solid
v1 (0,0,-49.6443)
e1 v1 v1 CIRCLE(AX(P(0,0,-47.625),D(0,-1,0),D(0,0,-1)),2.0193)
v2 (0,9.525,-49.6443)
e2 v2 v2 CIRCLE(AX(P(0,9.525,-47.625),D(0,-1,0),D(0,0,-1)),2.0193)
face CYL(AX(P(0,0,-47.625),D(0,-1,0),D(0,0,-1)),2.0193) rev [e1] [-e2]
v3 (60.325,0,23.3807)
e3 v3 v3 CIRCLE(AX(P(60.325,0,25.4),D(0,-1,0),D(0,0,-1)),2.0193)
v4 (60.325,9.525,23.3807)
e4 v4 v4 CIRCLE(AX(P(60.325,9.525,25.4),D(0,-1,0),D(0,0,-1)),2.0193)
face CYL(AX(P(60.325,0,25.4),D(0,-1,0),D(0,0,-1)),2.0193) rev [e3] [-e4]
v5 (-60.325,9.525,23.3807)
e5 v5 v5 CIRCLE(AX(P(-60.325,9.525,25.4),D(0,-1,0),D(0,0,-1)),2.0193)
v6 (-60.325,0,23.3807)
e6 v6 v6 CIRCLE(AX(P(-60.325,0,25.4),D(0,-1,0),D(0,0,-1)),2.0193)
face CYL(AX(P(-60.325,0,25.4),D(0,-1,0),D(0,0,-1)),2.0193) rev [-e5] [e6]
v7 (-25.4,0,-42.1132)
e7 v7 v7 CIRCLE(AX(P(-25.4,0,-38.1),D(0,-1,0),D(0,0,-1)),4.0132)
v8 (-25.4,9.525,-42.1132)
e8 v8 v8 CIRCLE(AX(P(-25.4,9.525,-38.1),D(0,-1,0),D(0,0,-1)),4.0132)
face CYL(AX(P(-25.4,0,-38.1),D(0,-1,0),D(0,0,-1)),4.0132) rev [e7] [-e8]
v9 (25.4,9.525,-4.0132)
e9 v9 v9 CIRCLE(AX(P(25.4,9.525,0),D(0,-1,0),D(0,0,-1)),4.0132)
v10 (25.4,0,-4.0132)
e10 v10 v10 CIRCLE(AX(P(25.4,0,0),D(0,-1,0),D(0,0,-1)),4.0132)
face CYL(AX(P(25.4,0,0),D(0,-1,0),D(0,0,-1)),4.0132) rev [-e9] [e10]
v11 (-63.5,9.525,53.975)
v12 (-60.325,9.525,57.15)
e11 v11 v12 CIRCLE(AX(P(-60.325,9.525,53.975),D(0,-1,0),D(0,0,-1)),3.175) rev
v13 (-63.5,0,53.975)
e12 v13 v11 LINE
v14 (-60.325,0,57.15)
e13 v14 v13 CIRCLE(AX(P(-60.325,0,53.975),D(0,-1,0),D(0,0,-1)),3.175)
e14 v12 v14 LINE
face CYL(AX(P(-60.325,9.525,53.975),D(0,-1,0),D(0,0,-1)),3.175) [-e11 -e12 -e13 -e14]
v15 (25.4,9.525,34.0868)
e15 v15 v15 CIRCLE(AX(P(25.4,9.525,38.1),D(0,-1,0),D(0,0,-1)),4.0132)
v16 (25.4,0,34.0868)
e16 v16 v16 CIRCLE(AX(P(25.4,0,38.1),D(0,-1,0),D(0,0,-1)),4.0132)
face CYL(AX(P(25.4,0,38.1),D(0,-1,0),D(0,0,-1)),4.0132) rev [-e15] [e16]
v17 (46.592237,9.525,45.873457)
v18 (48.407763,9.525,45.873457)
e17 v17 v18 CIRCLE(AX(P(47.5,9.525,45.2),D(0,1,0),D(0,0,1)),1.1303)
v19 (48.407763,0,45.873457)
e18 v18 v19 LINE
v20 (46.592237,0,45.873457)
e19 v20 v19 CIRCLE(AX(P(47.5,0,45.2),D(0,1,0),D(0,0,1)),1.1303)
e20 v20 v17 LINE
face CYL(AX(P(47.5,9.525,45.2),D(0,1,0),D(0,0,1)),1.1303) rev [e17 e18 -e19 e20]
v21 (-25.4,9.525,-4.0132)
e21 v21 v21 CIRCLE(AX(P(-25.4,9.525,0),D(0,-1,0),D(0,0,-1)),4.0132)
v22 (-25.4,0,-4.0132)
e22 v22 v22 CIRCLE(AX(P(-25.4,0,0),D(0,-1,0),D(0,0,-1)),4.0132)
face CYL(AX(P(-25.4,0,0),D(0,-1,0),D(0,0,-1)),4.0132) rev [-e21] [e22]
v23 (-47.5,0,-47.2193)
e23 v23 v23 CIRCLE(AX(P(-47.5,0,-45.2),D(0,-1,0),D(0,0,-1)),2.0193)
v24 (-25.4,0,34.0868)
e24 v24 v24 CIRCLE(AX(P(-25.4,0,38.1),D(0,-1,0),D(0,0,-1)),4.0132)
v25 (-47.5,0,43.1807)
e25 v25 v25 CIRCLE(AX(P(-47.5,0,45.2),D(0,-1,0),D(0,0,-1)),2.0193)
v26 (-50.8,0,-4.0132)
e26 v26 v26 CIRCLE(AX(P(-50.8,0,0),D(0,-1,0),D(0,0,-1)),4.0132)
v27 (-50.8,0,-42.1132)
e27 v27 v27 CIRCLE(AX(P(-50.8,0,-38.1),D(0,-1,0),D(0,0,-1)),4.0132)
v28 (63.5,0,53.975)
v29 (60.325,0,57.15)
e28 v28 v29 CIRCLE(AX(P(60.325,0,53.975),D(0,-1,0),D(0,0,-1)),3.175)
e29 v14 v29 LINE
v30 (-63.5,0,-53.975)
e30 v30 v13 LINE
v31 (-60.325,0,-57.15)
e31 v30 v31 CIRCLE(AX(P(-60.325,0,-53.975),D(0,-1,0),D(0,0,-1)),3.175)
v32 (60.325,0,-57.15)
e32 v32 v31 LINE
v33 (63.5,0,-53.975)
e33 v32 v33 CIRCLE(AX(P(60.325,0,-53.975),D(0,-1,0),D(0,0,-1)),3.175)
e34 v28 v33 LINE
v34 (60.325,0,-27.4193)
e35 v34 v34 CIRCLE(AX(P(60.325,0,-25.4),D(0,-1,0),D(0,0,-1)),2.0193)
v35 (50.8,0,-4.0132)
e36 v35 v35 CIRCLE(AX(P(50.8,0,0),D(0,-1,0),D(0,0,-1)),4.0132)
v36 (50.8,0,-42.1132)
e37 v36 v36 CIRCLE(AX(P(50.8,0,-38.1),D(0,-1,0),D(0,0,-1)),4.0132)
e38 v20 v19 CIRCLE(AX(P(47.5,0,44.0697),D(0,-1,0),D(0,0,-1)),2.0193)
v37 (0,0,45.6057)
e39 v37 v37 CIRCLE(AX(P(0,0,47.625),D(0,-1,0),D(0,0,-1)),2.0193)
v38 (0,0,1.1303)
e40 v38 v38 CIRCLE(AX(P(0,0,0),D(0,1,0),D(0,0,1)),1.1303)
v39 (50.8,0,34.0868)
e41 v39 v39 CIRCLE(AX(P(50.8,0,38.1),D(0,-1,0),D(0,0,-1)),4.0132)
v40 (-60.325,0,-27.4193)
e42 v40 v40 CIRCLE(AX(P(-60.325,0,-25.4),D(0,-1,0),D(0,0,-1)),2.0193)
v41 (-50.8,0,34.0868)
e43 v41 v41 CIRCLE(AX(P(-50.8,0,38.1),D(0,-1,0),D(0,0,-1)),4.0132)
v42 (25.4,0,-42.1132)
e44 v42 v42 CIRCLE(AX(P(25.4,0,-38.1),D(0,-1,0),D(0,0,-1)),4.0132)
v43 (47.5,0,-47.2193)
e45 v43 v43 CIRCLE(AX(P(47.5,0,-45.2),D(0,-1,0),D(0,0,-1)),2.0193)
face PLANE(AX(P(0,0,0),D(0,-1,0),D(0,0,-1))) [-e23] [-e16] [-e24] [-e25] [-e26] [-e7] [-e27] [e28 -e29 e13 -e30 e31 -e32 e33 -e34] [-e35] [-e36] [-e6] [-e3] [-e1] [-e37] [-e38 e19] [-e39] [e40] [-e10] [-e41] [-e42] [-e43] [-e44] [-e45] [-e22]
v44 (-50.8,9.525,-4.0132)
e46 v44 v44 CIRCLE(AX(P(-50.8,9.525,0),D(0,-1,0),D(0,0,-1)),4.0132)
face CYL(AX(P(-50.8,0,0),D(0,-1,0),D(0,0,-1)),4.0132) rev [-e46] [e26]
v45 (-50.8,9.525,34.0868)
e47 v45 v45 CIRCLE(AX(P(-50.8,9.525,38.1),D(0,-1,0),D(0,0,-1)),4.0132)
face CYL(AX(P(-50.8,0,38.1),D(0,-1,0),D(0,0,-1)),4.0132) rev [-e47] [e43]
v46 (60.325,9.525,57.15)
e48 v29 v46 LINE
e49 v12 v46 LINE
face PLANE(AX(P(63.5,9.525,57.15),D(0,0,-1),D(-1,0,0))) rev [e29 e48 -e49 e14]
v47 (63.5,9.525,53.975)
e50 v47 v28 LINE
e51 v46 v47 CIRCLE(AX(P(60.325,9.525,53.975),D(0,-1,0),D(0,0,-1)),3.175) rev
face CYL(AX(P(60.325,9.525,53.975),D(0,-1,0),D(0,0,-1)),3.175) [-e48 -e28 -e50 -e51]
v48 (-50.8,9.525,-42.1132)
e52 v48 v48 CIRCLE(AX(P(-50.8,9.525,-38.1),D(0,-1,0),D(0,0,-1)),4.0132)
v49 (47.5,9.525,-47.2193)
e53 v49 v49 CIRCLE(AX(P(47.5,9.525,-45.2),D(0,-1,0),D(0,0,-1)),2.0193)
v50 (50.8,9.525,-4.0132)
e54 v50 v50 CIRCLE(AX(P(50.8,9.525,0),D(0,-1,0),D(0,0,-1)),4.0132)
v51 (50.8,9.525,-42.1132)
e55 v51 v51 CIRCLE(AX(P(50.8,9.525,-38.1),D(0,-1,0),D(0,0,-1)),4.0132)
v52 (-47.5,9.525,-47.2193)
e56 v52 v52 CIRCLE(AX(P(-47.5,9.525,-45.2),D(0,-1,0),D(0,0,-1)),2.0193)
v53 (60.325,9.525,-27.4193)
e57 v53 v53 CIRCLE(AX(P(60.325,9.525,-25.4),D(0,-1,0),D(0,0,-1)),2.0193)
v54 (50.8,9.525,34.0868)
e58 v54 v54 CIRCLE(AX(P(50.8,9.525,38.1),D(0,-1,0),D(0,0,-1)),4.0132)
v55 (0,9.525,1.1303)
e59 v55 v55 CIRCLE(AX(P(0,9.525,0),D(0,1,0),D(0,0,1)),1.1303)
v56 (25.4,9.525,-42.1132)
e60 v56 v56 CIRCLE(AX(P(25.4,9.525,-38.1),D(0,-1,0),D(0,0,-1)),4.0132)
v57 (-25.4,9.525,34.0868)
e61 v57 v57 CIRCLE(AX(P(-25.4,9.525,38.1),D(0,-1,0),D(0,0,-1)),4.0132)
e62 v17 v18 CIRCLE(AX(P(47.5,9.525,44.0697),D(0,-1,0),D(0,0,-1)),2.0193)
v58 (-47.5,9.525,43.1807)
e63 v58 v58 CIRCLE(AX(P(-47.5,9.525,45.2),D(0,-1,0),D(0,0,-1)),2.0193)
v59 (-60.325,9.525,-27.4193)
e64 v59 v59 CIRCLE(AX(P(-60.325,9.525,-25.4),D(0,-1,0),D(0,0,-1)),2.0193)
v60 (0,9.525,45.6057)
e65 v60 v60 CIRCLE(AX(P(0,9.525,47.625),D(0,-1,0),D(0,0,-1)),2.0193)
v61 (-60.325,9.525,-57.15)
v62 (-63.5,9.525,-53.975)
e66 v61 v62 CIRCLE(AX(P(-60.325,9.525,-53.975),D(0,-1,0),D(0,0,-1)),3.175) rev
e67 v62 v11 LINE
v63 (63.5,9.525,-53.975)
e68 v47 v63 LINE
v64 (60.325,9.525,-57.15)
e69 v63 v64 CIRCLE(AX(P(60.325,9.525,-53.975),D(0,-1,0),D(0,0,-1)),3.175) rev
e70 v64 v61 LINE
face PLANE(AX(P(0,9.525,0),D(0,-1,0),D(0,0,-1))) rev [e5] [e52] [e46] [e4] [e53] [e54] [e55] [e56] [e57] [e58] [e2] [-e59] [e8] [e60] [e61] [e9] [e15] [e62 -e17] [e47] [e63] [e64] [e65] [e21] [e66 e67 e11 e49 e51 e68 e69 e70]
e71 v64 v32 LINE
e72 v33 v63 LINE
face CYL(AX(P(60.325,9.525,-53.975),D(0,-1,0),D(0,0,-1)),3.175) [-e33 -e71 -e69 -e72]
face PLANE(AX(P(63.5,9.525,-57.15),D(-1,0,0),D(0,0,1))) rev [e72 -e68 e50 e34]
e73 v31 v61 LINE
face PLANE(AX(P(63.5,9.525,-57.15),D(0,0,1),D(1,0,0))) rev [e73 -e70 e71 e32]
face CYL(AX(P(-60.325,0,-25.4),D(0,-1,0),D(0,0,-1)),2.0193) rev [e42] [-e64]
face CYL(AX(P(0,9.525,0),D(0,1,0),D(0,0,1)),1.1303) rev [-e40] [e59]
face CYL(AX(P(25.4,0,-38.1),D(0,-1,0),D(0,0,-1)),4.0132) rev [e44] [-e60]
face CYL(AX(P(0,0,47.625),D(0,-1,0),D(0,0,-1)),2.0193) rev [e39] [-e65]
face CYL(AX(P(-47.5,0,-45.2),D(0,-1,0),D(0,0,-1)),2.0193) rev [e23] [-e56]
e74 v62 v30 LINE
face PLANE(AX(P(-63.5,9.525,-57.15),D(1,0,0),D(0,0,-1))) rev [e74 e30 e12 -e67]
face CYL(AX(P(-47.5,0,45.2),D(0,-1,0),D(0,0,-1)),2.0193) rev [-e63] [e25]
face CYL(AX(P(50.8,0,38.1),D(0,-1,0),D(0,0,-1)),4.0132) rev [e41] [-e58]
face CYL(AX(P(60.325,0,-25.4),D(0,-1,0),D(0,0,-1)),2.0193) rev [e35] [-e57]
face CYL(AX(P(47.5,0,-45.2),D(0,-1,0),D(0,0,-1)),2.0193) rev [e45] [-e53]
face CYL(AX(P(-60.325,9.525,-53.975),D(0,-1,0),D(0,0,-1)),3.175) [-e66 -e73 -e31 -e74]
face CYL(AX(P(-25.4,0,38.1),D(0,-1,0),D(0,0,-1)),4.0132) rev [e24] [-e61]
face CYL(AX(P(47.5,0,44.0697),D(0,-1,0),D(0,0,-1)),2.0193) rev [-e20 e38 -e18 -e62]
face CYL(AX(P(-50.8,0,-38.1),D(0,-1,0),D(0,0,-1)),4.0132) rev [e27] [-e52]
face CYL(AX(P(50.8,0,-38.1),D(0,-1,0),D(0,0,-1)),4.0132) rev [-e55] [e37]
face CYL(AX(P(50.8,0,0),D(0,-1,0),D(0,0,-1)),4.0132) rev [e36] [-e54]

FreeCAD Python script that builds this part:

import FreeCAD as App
import Part
import Sketcher
from FreeCAD import Vector
Q = App.Units.Quantity


def edges_at(feature, points):
    """Names of the edges that pass closest to the given points."""
    edges = feature.Shape.Edges
    near = lambda p: min(range(len(edges)), key=lambda i: edges[i].distToShape(Part.Vertex(*p))[0])
    return sorted({f"Edge{near(p) + 1}" for p in points})


def add_polygon(sketch, points):
    """Adds a closed chain of lines whose ends are joined by coincident constraints."""
    first, n = sketch.GeometryCount, len(points)
    for a, b in zip(points, points[1:] + points[:1]):
        sketch.addGeometry(Part.LineSegment(App.Vector(*a, 0), App.Vector(*b, 0)), False)
    for i in range(n):
        sketch.addConstraint(Sketcher.Constraint("Coincident", first + i, 2, first + (i + 1) % n, 1))

doc = App.newDocument("Part")
body = doc.addObject("PartDesign::Body", "Body")

# Sketch on XZ plane
sketch1 = body.newObject("Sketcher::SketchObject", "Sketch")
sketch1.AttachmentSupport = (doc.getObject("XZ_Plane"), [""])
sketch1.MapMode = "FlatFace"
add_polygon(sketch1, [(-64, -57), (-64, 57), (64, 57), (64, -57)])  # lines 0-3
sketch1.addConstraint([
    Sketcher.Constraint("Vertical", 0),
    Sketcher.Constraint("Horizontal", 1),
    Sketcher.Constraint("Vertical", 2),
    Sketcher.Constraint("Horizontal", 3),
    Sketcher.Constraint("Symmetric", 0, 2, 2, 2, -1, 1),
    Sketcher.Constraint("DistanceX", 1, 1, 1, 2, Q("5 in")),
    Sketcher.Constraint("DistanceY", 0, 1, 0, 2, Q("4.5 in")),
])
pad1 = body.newObject("PartDesign::Pad", "Pad")
pad1.Profile = sketch1
pad1.Length = Q("0.375 in")
pad1.Reversed = True

# Sketch on XZ plane
sketch2 = body.newObject("Sketcher::SketchObject", "Sketch001")
sketch2.AttachmentSupport = (doc.getObject("XZ_Plane"), [""])
sketch2.MapMode = "FlatFace"
sketch2.AttachmentOffset = App.Placement(Vector(0, 0, -0.375 * 25.4), App.Rotation())
sketch2.addGeometry([
    Part.Circle(Vector(-47.5, -45.2, 0), Vector(0, 0, 1), 1.1),  # 0
    Part.Circle(Vector(-47.5, 45.2, 0), Vector(0, 0, 1), 1.1),  # 1
    Part.Circle(Vector(47.5, 45.2, 0), Vector(0, 0, 1), 1.1),  # 2
    Part.Circle(Vector(47.5, -45.2, 0), Vector(0, 0, 1), 1.1),  # 3
    Part.Circle(Vector(0, 0, 0), Vector(0, 0, 1), 1.1),  # 4
], False)
sketch2.addConstraint([
    Sketcher.Constraint("Coincident", 4, 3, -1, 1),
    Sketcher.Constraint("Equal", 0, 1),
    Sketcher.Constraint("Equal", 1, 2),
    Sketcher.Constraint("Equal", 2, 3),
    Sketcher.Constraint("Equal", 3, 4),
    Sketcher.Constraint("Symmetric", 0, 3, 2, 3, -1, 1),
    Sketcher.Constraint("Symmetric", 1, 3, 3, 3, -1, 1),
    Sketcher.Constraint("Symmetric", 1, 3, 2, 3, -2),
    Sketcher.Constraint("Diameter", 0, Q("0.089 in")),
    Sketcher.Constraint("DistanceX", 0, 3, -1, 1, Q("47.5 mm")),
    Sketcher.Constraint("DistanceY", 0, 3, -1, 1, Q("45.2 mm")),
])
doc.recompute()
hole = body.newObject("PartDesign::Hole", "Hole")
hole.Profile = sketch2
hole.ThreadType = "None"
hole.Diameter = Q("0.089 in")
hole.DepthType = "ThroughAll"
hole.Reversed = True

# Sketch on XZ plane
sketch3 = body.newObject("Sketcher::SketchObject", "Sketch002")
sketch3.AttachmentSupport = (doc.getObject("XZ_Plane"), [""])
sketch3.MapMode = "FlatFace"
sketch3.AttachmentOffset = App.Placement(Vector(0, 0, -0.375 * 25.4), App.Rotation())
sketch3.addGeometry([
    Part.Circle(Vector(60.3, -25.4, 0), Vector(0, 0, 1), 1.1),  # 0
    Part.Circle(Vector(60.3, 25.4, 0), Vector(0, 0, 1), 1.1),  # 1
    Part.Circle(Vector(-60.3, 25.4, 0), Vector(0, 0, 1), 1.1),  # 2
    Part.Circle(Vector(-60.3, -25.4, 0), Vector(0, 0, 1), 1.1),  # 3
    Part.Circle(Vector(0, 0, 0), Vector(0, 0, 1), 1.1),  # 4
], False)
sketch3.addConstraint([
    Sketcher.Constraint("Coincident", 4, 3, -1, 1),
    Sketcher.Constraint("Equal", 0, 1),
    Sketcher.Constraint("Equal", 1, 2),
    Sketcher.Constraint("Equal", 2, 3),
    Sketcher.Constraint("Equal", 3, 4),
    Sketcher.Constraint("Symmetric", 0, 3, 2, 3, -1, 1),
    Sketcher.Constraint("Symmetric", 1, 3, 3, 3, -1, 1),
    Sketcher.Constraint("Symmetric", 1, 3, 2, 3, -2),
    Sketcher.Constraint("Diameter", 0, Q("0.089 in")),
    Sketcher.Constraint("DistanceY", 0, 3, -1, 1, Q("1 in")),
    Sketcher.Constraint("DistanceX", 2, 3, 1, 3, Q("4.75 in")),
])
doc.recompute()
hole2 = body.newObject("PartDesign::Hole", "Hole001")
hole2.Profile = sketch3
hole2.ThreadType = "None"
hole2.Diameter = Q("0.089 in")
hole2.DepthType = "ThroughAll"
hole2.Reversed = True
doc.recompute()

fillet = body.newObject("PartDesign::Fillet", "Fillet")
fillet.Base = (hole2, edges_at(hole2, [
    (-63.5, 4.763, -57.15),
    (63.5, 4.763, -57.15),
    (63.5, 4.763, 57.15),
    (-63.5, 4.763, 57.15),
]))
fillet.Radius = Q("0.125 in")

# Sketch on XZ plane
sketch4 = body.newObject("Sketcher::SketchObject", "Sketch003")
sketch4.AttachmentSupport = (doc.getObject("XZ_Plane"), [""])
sketch4.MapMode = "FlatFace"
sketch4.AttachmentOffset = App.Placement(Vector(0, 0, -0.375 * 25.4), App.Rotation())
sketch4.addGeometry([
    Part.Circle(Vector(0, 47.6, 0), Vector(0, 0, 1), 1.1),
    Part.Circle(Vector(0, -47.6, 0), Vector(0, 0, 1), 1.1),
], False)
sketch4.addConstraint([
    Sketcher.Constraint("Equal", 0, 1),
    Sketcher.Constraint("Symmetric", 0, 3, 1, 3, -1, 1),
    Sketcher.Constraint("PointOnObject", 0, 3, -2),
    Sketcher.Constraint("Diameter", 0, Q("0.089 in")),
    Sketcher.Constraint("DistanceY", 1, 3, 0, 3, Q("3.75 in")),
])
doc.recompute()
hole3 = body.newObject("PartDesign::Hole", "Hole002")
hole3.Profile = sketch4
hole3.ThreadType = "None"
hole3.Diameter = Q("0.089 in")
hole3.DepthType = "ThroughAll"
hole3.Reversed = True

# Sketch on XZ plane
sketch5 = body.newObject("Sketcher::SketchObject", "Sketch004")
sketch5.AttachmentSupport = (doc.getObject("XZ_Plane"), [""])
sketch5.MapMode = "FlatFace"
sketch5.addGeometry([
    Part.Circle(Vector(50.8, -38.1, 0), Vector(0, 0, 1), 2.6),  # 0
    Part.Circle(Vector(25.4, -38.1, 0), Vector(0, 0, 1), 2.6),  # 1
    Part.Circle(Vector(25.4, 0, 0), Vector(0, 0, 1), 2.6),  # 2
    Part.Circle(Vector(50.8, 0, 0), Vector(0, 0, 1), 2.6),  # 3
    Part.Circle(Vector(50.8, 38.1, 0), Vector(0, 0, 1), 2.6),  # 4
    Part.Circle(Vector(25.4, 38.1, 0), Vector(0, 0, 1), 2.6),  # 5
    Part.Circle(Vector(-25.4, 38.1, 0), Vector(0, 0, 1), 2.6),  # 6
    Part.Circle(Vector(-50.8, 38.1, 0), Vector(0, 0, 1), 2.6),  # 7
    Part.Circle(Vector(-50.8, 0, 0), Vector(0, 0, 1), 2.6),  # 8
    Part.Circle(Vector(-25.4, 0, 0), Vector(0, 0, 1), 2.6),  # 9
    Part.Circle(Vector(-25.4, -38.1, 0), Vector(0, 0, 1), 2.6),  # 10
    Part.Circle(Vector(-50.8, -38.1, 0), Vector(0, 0, 1), 2.6),  # 11
], False)
sketch5.addConstraint([
    Sketcher.Constraint("Equal", 0, 1),
    Sketcher.Constraint("Equal", 1, 2),
    Sketcher.Constraint("Equal", 2, 3),
    Sketcher.Constraint("Equal", 3, 4),
    Sketcher.Constraint("Equal", 4, 5),
    Sketcher.Constraint("Equal", 5, 6),
    Sketcher.Constraint("Equal", 6, 7),
    Sketcher.Constraint("Equal", 7, 8),
    Sketcher.Constraint("Equal", 8, 9),
    Sketcher.Constraint("Equal", 9, 10),
    Sketcher.Constraint("Equal", 10, 11),
    Sketcher.Constraint("Symmetric", 1, 3, 6, 3, -1, 1),
    Sketcher.Constraint("Symmetric", 0, 3, 7, 3, -1, 1),
    Sketcher.Constraint("Symmetric", 3, 3, 8, 3, -1, 1),
    Sketcher.Constraint("Symmetric", 2, 3, 9, 3, -1, 1),
    Sketcher.Constraint("Symmetric", 5, 3, 10, 3, -1, 1),
    Sketcher.Constraint("Symmetric", 4, 3, 11, 3, -1, 1),
    Sketcher.Constraint("Symmetric", 5, 3, 6, 3, -2),
    Sketcher.Constraint("Symmetric", 4, 3, 7, 3, -2),
    Sketcher.Constraint("PointOnObject", 2, 3, -1),
    Sketcher.Constraint("PointOnObject", 3, 3, -1),
    Sketcher.Constraint("Horizontal", 0, 3, 1, 3),
    Sketcher.Constraint("Vertical", 1, 3, 2, 3),
    Sketcher.Constraint("Vertical", 0, 3, 3, 3),
    Sketcher.Constraint("Diameter", 0, Q("0.201 in")),
    Sketcher.Constraint("DistanceX", -1, 1, 0, 3, Q("2 in")),
    Sketcher.Constraint("DistanceX", -1, 1, 1, 3, Q("1 in")),
    Sketcher.Constraint("DistanceY", 0, 3, 4, 3, Q("3 in")),
])
doc.recompute()
hole4 = body.newObject("PartDesign::Hole", "Hole003")
hole4.Profile = sketch5
hole4.ThreadType = "None"
hole4.Diameter = Q("0.201 in")
hole4.DepthType = "ThroughAll"

# Sketch on XZ plane
sketch6 = body.newObject("Sketcher::SketchObject", "Sketch005")
sketch6.AttachmentSupport = (doc.getObject("XZ_Plane"), [""])
sketch6.MapMode = "FlatFace"
sketch6.addGeometry([
    Part.Circle(Vector(47.5, -45.2, 0), Vector(0, 0, 1), 2),  # 0
    Part.Circle(Vector(60.3, -25.4, 0), Vector(0, 0, 1), 2),  # 1
    Part.Circle(Vector(60.3, 25.4, 0), Vector(0, 0, 1), 2),  # 2
    Part.Circle(Vector(47.5, 44.1, 0), Vector(0, 0, 1), 2),  # 3
    Part.Circle(Vector(0, 47.6, 0), Vector(0, 0, 1), 2),  # 4
    Part.Circle(Vector(-47.5, 45.2, 0), Vector(0, 0, 1), 2),  # 5
    Part.Circle(Vector(-60.3, 25.4, 0), Vector(0, 0, 1), 2),  # 6
    Part.Circle(Vector(-60.3, -25.4, 0), Vector(0, 0, 1), 2),  # 7
    Part.Circle(Vector(-47.5, -45.2, 0), Vector(0, 0, 1), 2),  # 8
    Part.Circle(Vector(0, -47.6, 0), Vector(0, 0, 1), 2),  # 9
], False)
sketch6.addConstraint([
    Sketcher.Constraint("Equal", 0, 1),
    Sketcher.Constraint("Equal", 1, 2),
    Sketcher.Constraint("Equal", 2, 3),
    Sketcher.Constraint("Equal", 3, 4),
    Sketcher.Constraint("Equal", 4, 5),
    Sketcher.Constraint("Equal", 5, 6),
    Sketcher.Constraint("Equal", 6, 7),
    Sketcher.Constraint("Equal", 7, 8),
    Sketcher.Constraint("Equal", 8, 9),
    Sketcher.Constraint("Symmetric", 0, 3, 5, 3, -1, 1),
    Sketcher.Constraint("Symmetric", 1, 3, 6, 3, -1, 1),
    Sketcher.Constraint("Symmetric", 2, 3, 7, 3, -1, 1),
    Sketcher.Constraint("Symmetric", 4, 3, 9, 3, -1, 1),
    Sketcher.Constraint("Symmetric", 2, 3, 6, 3, -2),
    Sketcher.Constraint("Symmetric", 0, 3, 8, 3, -2),
    Sketcher.Constraint("PointOnObject", 4, 3, -2),
    Sketcher.Constraint("Vertical", 0, 3, 3, 3),
    Sketcher.Constraint("Diameter", 0, Q("0.159 in")),
    Sketcher.Constraint("DistanceY", 1, 3, -1, 1, Q("1 in")),
    Sketcher.Constraint("DistanceX", 6, 3, 2, 3, Q("4.75 in")),
    Sketcher.Constraint("DistanceY", -1, 1, 4, 3, Q("1.875 in")),
    Sketcher.Constraint("DistanceY", 3, 3, 5, 3, Q("0.0445 in")),
    Sketcher.Constraint("DistanceX", -1, 1, 0, 3, Q("47.5 mm")),
    Sketcher.Constraint("DistanceY", 0, 3, -1, 1, Q("45.2 mm")),
])
doc.recompute()
hole5 = body.newObject("PartDesign::Hole", "Hole004")
hole5.Profile = sketch6
hole5.ThreadType = "None"
hole5.Diameter = Q("0.159 in")
hole5.DepthType = "Dimension"
hole5.Depth = Q("0.375 in")
hole5.DrillPoint = "Flat"

# Sketch on XZ plane
sketch7 = body.newObject("Sketcher::SketchObject", "Sketch006")
sketch7.AttachmentSupport = (doc.getObject("XZ_Plane"), [""])
sketch7.MapMode = "FlatFace"
sketch7.addGeometry([
    Part.Circle(Vector(50.8, -38.1, 0), Vector(0, 0, 1), 4),  # 0
    Part.Circle(Vector(25.4, -38.1, 0), Vector(0, 0, 1), 4),  # 1
    Part.Circle(Vector(25.4, 0, 0), Vector(0, 0, 1), 4),  # 2
    Part.Circle(Vector(50.8, 0, 0), Vector(0, 0, 1), 4),  # 3
    Part.Circle(Vector(50.8, 38.1, 0), Vector(0, 0, 1), 4),  # 4
    Part.Circle(Vector(25.4, 38.1, 0), Vector(0, 0, 1), 4),  # 5
    Part.Circle(Vector(-25.4, 38.1, 0), Vector(0, 0, 1), 4),  # 6
    Part.Circle(Vector(-50.8, 38.1, 0), Vector(0, 0, 1), 4),  # 7
    Part.Circle(Vector(-50.8, 0, 0), Vector(0, 0, 1), 4),  # 8
    Part.Circle(Vector(-25.4, 0, 0), Vector(0, 0, 1), 4),  # 9
    Part.Circle(Vector(-25.4, -38.1, 0), Vector(0, 0, 1), 4),  # 10
    Part.Circle(Vector(-50.8, -38.1, 0), Vector(0, 0, 1), 4),  # 11
], False)
sketch7.addConstraint([
    Sketcher.Constraint("Equal", 0, 1),
    Sketcher.Constraint("Equal", 1, 2),
    Sketcher.Constraint("Equal", 2, 3),
    Sketcher.Constraint("Equal", 3, 4),
    Sketcher.Constraint("Equal", 4, 5),
    Sketcher.Constraint("Equal", 5, 6),
    Sketcher.Constraint("Equal", 6, 7),
    Sketcher.Constraint("Equal", 7, 8),
    Sketcher.Constraint("Equal", 8, 9),
    Sketcher.Constraint("Equal", 9, 10),
    Sketcher.Constraint("Equal", 10, 11),
    Sketcher.Constraint("Symmetric", 1, 3, 6, 3, -1, 1),
    Sketcher.Constraint("Symmetric", 0, 3, 7, 3, -1, 1),
    Sketcher.Constraint("Symmetric", 3, 3, 8, 3, -1, 1),
    Sketcher.Constraint("Symmetric", 2, 3, 9, 3, -1, 1),
    Sketcher.Constraint("Symmetric", 5, 3, 10, 3, -1, 1),
    Sketcher.Constraint("Symmetric", 4, 3, 11, 3, -1, 1),
    Sketcher.Constraint("Symmetric", 5, 3, 6, 3, -2),
    Sketcher.Constraint("Symmetric", 4, 3, 7, 3, -2),
    Sketcher.Constraint("PointOnObject", 2, 3, -1),
    Sketcher.Constraint("PointOnObject", 3, 3, -1),
    Sketcher.Constraint("Horizontal", 0, 3, 1, 3),
    Sketcher.Constraint("Vertical", 1, 3, 2, 3),
    Sketcher.Constraint("Vertical", 0, 3, 3, 3),
    Sketcher.Constraint("Diameter", 0, Q("0.316 in")),
    Sketcher.Constraint("DistanceX", -1, 1, 0, 3, Q("2 in")),
    Sketcher.Constraint("DistanceX", -1, 1, 1, 3, Q("1 in")),
    Sketcher.Constraint("DistanceY", 0, 3, 4, 3, Q("3 in")),
])
doc.recompute()
hole6 = body.newObject("PartDesign::Hole", "Hole005")
hole6.Profile = sketch7
hole6.ThreadType = "None"
hole6.Diameter = Q("0.316 in")
hole6.DepthType = "Dimension"
hole6.Depth = Q("0.375 in")
hole6.DrillPoint = "Flat"

doc.recompute()
